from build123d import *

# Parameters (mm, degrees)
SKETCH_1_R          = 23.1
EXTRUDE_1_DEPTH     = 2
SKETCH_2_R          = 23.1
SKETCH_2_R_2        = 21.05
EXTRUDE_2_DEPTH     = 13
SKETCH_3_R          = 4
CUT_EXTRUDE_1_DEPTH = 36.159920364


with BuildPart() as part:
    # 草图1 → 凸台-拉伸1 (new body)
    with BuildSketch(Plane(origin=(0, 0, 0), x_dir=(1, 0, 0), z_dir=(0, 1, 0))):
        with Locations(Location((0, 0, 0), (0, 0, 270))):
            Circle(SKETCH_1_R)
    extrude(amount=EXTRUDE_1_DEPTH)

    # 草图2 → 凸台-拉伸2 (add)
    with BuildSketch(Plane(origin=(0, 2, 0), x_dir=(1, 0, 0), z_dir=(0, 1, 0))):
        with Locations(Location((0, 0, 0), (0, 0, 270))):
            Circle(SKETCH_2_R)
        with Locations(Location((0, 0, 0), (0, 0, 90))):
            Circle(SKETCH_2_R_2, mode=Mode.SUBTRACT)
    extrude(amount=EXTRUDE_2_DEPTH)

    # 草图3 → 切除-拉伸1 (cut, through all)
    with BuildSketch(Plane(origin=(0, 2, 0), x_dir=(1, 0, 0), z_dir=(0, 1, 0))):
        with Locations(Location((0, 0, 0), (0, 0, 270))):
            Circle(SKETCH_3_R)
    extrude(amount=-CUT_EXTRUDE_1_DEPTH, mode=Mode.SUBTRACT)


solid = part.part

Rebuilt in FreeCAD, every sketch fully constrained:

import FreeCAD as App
import Part
import Sketcher

V = App.Vector

doc = App.newDocument("Part")
params = doc.addObject("Spreadsheet::Sheet", "Params")
for row, (alias, value) in enumerate([
    ("sketch1_diameter", "46.2 mm"),
    ("pad1_length", "2 mm"),
    ("sketch2_diameter", "46.2 mm"),
    ("sketch2_diameter2", "42.1 mm"),
    ("pad2_length", "13 mm"),
    ("sketch3_diameter", "8 mm"),
], start=1):
    params.set(f"A{row}", alias)
    params.set(f"B{row}", "=" + value)
    params.setAlias(f"B{row}", alias)

body = doc.addObject("PartDesign::Body", "Body")

# Sketch on XZ plane
sketch1 = doc.addObject("Sketcher::SketchObject", "Sketch")
body.addObject(sketch1)
sketch1.AttachmentSupport = (doc.XZ_Plane, [""])
sketch1.MapMode = "FlatFace"
sketch1.addGeometry(Part.Circle(V(0, 0, 0), V(0, 0, 1), 23), False)
sketch1.addConstraint([
    Sketcher.Constraint("Coincident", 0, 3, -1, 1),
    Sketcher.Constraint("Diameter", 0, 46.2),
])
sketch1.setExpression("Constraints[1]", "Params.sketch1_diameter")
pad1 = doc.addObject("PartDesign::Pad", "Pad")
body.addObject(pad1)
pad1.Profile = sketch1
pad1.setExpression("Length", "Params.pad1_length")
pad1.Reversed = True

# Sketch on XZ plane
sketch2 = doc.addObject("Sketcher::SketchObject", "Sketch001")
body.addObject(sketch2)
sketch2.AttachmentSupport = (doc.XZ_Plane, [""])
sketch2.MapMode = "FlatFace"
sketch2.AttachmentOffset = App.Placement(V(0, 0, -2), App.Rotation())
sketch2.addGeometry([
    Part.Circle(V(0, 0, 0), V(0, 0, 1), 23),
    Part.Circle(V(0, 0, 0), V(0, 0, 1), 21),
], False)
sketch2.addConstraint([
    Sketcher.Constraint("Coincident", 0, 3, -1, 1),
    Sketcher.Constraint("Coincident", 1, 3, -1, 1),
    Sketcher.Constraint("Diameter", 0, 46.2),
    Sketcher.Constraint("Diameter", 1, 42.1),
])
sketch2.setExpression("Constraints[2]", "Params.sketch2_diameter")
sketch2.setExpression("Constraints[3]", "Params.sketch2_diameter2")
pad2 = doc.addObject("PartDesign::Pad", "Pad001")
body.addObject(pad2)
pad2.Profile = sketch2
pad2.setExpression("Length", "Params.pad2_length")
pad2.Reversed = True

# Sketch on XZ plane
sketch3 = doc.addObject("Sketcher::SketchObject", "Sketch002")
body.addObject(sketch3)
sketch3.AttachmentSupport = (doc.XZ_Plane, [""])
sketch3.MapMode = "FlatFace"
sketch3.AttachmentOffset = App.Placement(V(0, 0, -2), App.Rotation())
sketch3.addGeometry(Part.Circle(V(0, 0, 0), V(0, 0, 1), 4), False)
sketch3.addConstraint([
    Sketcher.Constraint("Coincident", 0, 3, -1, 1),
    Sketcher.Constraint("Diameter", 0, 8.0),
])
sketch3.setExpression("Constraints[1]", "Params.sketch3_diameter")
pocket1 = doc.addObject("PartDesign::Pocket", "Pocket")
body.addObject(pocket1)
pocket1.Profile = sketch3
pocket1.Type = "ThroughAll"
pocket1.Reversed = True

doc.recompute()
